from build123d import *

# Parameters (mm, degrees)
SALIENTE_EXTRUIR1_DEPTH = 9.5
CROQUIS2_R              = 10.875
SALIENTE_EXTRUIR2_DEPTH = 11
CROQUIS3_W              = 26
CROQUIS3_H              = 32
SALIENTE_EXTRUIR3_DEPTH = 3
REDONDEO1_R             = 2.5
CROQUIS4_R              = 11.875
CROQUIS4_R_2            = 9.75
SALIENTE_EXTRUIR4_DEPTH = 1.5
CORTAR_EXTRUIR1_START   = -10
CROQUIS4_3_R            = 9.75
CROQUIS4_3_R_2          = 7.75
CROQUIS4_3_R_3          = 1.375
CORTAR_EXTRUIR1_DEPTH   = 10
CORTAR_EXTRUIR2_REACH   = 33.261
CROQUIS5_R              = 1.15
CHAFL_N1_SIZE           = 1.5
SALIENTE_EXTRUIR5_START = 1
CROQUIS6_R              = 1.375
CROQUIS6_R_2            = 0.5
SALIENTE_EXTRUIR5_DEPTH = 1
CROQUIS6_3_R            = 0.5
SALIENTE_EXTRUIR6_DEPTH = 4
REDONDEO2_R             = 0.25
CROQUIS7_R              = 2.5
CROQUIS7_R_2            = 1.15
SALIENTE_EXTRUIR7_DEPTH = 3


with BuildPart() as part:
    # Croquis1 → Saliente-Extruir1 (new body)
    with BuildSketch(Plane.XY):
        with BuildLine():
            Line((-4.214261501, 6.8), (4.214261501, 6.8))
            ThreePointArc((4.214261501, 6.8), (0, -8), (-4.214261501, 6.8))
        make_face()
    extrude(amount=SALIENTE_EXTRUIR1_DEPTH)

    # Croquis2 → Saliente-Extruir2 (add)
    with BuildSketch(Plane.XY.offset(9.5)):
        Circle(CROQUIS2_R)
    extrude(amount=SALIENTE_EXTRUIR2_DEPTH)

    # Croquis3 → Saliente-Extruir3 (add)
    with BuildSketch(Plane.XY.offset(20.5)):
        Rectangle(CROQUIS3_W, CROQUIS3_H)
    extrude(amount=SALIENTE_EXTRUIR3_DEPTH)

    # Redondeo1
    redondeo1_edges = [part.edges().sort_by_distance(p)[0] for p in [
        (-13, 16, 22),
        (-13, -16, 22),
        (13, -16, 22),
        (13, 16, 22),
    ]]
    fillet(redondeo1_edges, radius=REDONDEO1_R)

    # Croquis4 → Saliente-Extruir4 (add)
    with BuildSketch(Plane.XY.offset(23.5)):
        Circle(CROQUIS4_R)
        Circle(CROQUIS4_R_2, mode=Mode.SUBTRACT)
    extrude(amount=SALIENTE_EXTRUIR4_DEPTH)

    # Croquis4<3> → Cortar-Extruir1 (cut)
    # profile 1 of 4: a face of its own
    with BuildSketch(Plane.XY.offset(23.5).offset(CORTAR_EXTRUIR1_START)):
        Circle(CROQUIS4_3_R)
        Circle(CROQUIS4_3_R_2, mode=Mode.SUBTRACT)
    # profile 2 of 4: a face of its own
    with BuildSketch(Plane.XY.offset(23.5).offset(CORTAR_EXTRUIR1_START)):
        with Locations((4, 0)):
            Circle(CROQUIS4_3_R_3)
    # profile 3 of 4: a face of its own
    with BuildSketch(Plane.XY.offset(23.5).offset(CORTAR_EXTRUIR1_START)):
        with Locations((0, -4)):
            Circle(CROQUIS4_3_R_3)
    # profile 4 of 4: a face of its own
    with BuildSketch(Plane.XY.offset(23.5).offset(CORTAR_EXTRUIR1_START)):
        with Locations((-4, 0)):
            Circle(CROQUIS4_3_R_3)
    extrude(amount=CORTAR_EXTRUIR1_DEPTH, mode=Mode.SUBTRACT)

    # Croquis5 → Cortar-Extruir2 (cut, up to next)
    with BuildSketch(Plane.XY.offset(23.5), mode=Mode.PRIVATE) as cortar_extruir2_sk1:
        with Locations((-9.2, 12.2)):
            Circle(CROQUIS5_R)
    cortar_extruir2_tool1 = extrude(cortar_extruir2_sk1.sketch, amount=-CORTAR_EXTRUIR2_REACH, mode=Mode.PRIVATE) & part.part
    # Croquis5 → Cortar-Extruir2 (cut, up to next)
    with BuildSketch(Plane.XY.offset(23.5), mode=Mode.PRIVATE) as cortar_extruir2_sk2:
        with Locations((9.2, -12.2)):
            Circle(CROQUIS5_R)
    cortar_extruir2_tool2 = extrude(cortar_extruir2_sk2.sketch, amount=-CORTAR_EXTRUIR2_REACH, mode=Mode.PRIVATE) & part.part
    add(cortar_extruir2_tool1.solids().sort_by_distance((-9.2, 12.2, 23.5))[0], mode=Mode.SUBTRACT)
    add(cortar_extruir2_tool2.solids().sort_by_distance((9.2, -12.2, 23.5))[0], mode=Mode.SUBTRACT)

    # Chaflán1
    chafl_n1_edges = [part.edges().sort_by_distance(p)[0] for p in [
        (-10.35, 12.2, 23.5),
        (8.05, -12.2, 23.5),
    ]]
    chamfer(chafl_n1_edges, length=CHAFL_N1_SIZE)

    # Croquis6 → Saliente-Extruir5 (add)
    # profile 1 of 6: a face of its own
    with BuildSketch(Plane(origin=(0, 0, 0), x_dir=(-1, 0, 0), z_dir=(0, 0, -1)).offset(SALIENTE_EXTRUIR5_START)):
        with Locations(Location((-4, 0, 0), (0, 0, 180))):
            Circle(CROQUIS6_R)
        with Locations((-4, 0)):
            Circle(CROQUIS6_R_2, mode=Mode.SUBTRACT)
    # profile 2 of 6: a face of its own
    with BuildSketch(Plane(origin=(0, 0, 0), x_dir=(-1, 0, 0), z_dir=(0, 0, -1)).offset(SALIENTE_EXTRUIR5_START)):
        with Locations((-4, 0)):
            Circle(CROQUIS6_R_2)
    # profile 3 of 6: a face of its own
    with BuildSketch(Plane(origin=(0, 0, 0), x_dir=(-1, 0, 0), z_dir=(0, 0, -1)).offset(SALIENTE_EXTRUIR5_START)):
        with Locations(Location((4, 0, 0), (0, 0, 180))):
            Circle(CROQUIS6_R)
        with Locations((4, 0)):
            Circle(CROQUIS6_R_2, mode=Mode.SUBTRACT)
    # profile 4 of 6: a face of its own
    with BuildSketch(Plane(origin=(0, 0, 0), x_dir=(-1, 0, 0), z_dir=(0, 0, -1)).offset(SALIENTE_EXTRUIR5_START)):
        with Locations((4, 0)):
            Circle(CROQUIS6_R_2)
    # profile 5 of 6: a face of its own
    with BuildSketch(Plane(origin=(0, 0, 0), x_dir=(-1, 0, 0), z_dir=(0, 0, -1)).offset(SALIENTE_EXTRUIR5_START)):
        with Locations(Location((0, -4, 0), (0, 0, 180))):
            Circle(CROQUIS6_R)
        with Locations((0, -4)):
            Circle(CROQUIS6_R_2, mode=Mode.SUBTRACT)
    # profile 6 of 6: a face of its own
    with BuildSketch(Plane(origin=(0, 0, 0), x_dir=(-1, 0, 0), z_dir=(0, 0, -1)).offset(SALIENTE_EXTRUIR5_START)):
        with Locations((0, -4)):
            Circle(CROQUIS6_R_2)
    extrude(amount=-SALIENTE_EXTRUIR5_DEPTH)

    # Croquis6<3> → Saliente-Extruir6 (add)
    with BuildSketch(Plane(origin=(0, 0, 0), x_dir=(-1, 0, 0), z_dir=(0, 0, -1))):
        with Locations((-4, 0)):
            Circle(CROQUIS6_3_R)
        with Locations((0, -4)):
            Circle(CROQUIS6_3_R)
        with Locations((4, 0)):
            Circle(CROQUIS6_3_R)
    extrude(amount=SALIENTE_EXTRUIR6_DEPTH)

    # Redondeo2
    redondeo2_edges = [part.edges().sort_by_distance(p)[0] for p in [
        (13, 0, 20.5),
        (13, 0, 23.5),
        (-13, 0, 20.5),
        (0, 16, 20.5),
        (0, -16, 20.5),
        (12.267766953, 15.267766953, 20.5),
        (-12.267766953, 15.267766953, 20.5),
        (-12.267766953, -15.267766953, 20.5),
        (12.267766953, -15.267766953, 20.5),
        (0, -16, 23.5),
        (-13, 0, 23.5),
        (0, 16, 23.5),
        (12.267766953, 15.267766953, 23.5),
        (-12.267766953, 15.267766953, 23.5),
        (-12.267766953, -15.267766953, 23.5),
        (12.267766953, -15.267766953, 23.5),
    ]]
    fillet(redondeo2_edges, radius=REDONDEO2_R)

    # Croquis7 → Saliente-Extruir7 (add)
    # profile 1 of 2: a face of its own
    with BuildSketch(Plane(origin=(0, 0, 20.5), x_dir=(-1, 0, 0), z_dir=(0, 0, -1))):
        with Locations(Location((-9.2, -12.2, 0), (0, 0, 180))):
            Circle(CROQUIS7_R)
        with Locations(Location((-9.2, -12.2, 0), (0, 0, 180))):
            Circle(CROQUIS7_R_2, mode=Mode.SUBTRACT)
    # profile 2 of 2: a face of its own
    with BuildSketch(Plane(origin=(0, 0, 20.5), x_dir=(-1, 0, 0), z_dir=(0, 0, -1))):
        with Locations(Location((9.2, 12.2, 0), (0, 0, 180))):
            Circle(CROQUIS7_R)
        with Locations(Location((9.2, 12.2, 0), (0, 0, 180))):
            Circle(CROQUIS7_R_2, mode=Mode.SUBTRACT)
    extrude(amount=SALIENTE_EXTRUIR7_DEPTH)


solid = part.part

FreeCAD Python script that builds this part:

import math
import FreeCAD as App
import Part
import Sketcher
Q = App.Units.Quantity


def edges_at(feature, points):
    """Names of the edges that pass closest to the given points."""
    edges = feature.Shape.Edges
    near = lambda p: min(range(len(edges)), key=lambda i: edges[i].distToShape(Part.Vertex(*p))[0])
    return sorted({f"Edge{near(p) + 1}" for p in points})

doc = App.newDocument("Part")
body = doc.addObject("PartDesign::Body", "Body")

sketch1 = doc.addObject("Sketcher::SketchObject", "Sketch")
body.addObject(sketch1)
sketch1.AttachmentSupport = (doc.XY_Plane, [""])
sketch1.MapMode = "FlatFace"
sketch1.addGeometry(Part.LineSegment(App.Vector(4, 7, 0), App.Vector(-4, 7, 0)), False)
sketch1.addGeometry(Part.ArcOfCircle(Part.Circle(App.Vector(0, 0, 0), App.Vector(0, 0, 1), 8), math.radians(122), math.radians(418)), False)
sketch1.addConstraint(Sketcher.Constraint("Coincident", 0, 1, 1, 2))
sketch1.addConstraint(Sketcher.Constraint("Coincident", 1, 1, 0, 2))
sketch1.addConstraint(Sketcher.Constraint("Horizontal", 0))
sketch1.addConstraint(Sketcher.Constraint("Coincident", 1, 3, -1, 1))
sketch1.addConstraint(Sketcher.Constraint("Radius", 1, Q("8 mm")))
sketch1.addConstraint(Sketcher.Constraint("DistanceY", -1, 1, 0, 1, Q("6.8 mm")))
pad1 = doc.addObject("PartDesign::Pad", "Pad")
body.addObject(pad1)
pad1.Profile = sketch1
pad1.Length = 9.5

sketch2 = doc.addObject("Sketcher::SketchObject", "Sketch001")
body.addObject(sketch2)
sketch2.AttachmentSupport = (doc.XY_Plane, [""])
sketch2.MapMode = "FlatFace"
sketch2.AttachmentOffset = App.Placement(App.Vector(0, 0, 9.5), App.Rotation())
sketch2.addGeometry(Part.Circle(App.Vector(0, 0, 0), App.Vector(0, 0, 1), 11), False)
sketch2.addConstraint(Sketcher.Constraint("Coincident", 0, 3, -1, 1))
sketch2.addConstraint(Sketcher.Constraint("Diameter", 0, Q("21.75 mm")))
pad2 = doc.addObject("PartDesign::Pad", "Pad001")
body.addObject(pad2)
pad2.Profile = sketch2
pad2.Length = 11

sketch3 = doc.addObject("Sketcher::SketchObject", "Sketch002")
body.addObject(sketch3)
sketch3.AttachmentSupport = (doc.XY_Plane, [""])
sketch3.MapMode = "FlatFace"
sketch3.AttachmentOffset = App.Placement(App.Vector(0, 0, 20.5), App.Rotation())
sketch3.addGeometry(Part.LineSegment(App.Vector(-13, 16, 0), App.Vector(-13, -16, 0)), False)
sketch3.addGeometry(Part.LineSegment(App.Vector(-13, -16, 0), App.Vector(13, -16, 0)), False)
sketch3.addGeometry(Part.LineSegment(App.Vector(13, -16, 0), App.Vector(13, 16, 0)), False)
sketch3.addGeometry(Part.LineSegment(App.Vector(13, 16, 0), App.Vector(-13, 16, 0)), False)
sketch3.addConstraint(Sketcher.Constraint("Coincident", 0, 2, 1, 1))
sketch3.addConstraint(Sketcher.Constraint("Coincident", 1, 2, 2, 1))
sketch3.addConstraint(Sketcher.Constraint("Coincident", 2, 2, 3, 1))
sketch3.addConstraint(Sketcher.Constraint("Coincident", 3, 2, 0, 1))
sketch3.addConstraint(Sketcher.Constraint("Vertical", 0))
sketch3.addConstraint(Sketcher.Constraint("Horizontal", 1))
sketch3.addConstraint(Sketcher.Constraint("Vertical", 2))
sketch3.addConstraint(Sketcher.Constraint("Horizontal", 3))
sketch3.addConstraint(Sketcher.Constraint("Symmetric", 0, 2, 2, 2, -1, 1))
sketch3.addConstraint(Sketcher.Constraint("DistanceX", 1, 1, 1, 2, Q("26 mm")))
sketch3.addConstraint(Sketcher.Constraint("DistanceY", 0, 2, 0, 1, Q("32 mm")))
pad3 = doc.addObject("PartDesign::Pad", "Pad002")
body.addObject(pad3)
pad3.Profile = sketch3
pad3.Length = 3
doc.recompute()

fillet = doc.addObject("PartDesign::Fillet", "Fillet")
body.addObject(fillet)
fillet.Base = (pad3, edges_at(pad3, [
    (-13, 16, 22),
    (-13, -16, 22),
    (13, -16, 22),
    (13, 16, 22),
]))
fillet.Radius = 2.5

sketch4 = doc.addObject("Sketcher::SketchObject", "Sketch003")
body.addObject(sketch4)
sketch4.AttachmentSupport = (doc.XY_Plane, [""])
sketch4.MapMode = "FlatFace"
sketch4.AttachmentOffset = App.Placement(App.Vector(0, 0, 23.5), App.Rotation())
sketch4.addGeometry(Part.Circle(App.Vector(0, 0, 0), App.Vector(0, 0, 1), 12), False)
sketch4.addGeometry(Part.Circle(App.Vector(0, 0, 0), App.Vector(0, 0, 1), 10), False)
sketch4.addConstraint(Sketcher.Constraint("Coincident", 0, 3, -1, 1))
sketch4.addConstraint(Sketcher.Constraint("Coincident", 1, 3, -1, 1))
sketch4.addConstraint(Sketcher.Constraint("Diameter", 1, Q("19.5 mm")))
sketch4.addConstraint(Sketcher.Constraint("Diameter", 0, Q("23.75 mm")))
pad4 = doc.addObject("PartDesign::Pad", "Pad003")
body.addObject(pad4)
pad4.Profile = sketch4
pad4.Length = 1.5

sketch5 = doc.addObject("Sketcher::SketchObject", "Sketch004")
body.addObject(sketch5)
sketch5.AttachmentSupport = (doc.XY_Plane, [""])
sketch5.MapMode = "FlatFace"
sketch5.AttachmentOffset = App.Placement(App.Vector(0, 0, 13.5), App.Rotation())
sketch5.addGeometry(Part.Circle(App.Vector(0, 0, 0), App.Vector(0, 0, 1), 9.8), False)
sketch5.addGeometry(Part.Circle(App.Vector(0, 0, 0), App.Vector(0, 0, 1), 7.8), False)
sketch5.addGeometry(Part.Circle(App.Vector(4, 0, 0), App.Vector(0, 0, 1), 1.4), False)
sketch5.addGeometry(Part.Circle(App.Vector(0, -4, 0), App.Vector(0, 0, 1), 1.4), False)
sketch5.addGeometry(Part.Circle(App.Vector(-4, 0, 0), App.Vector(0, 0, 1), 1.4), False)
sketch5.addConstraint(Sketcher.Constraint("Coincident", 0, 3, -1, 1))
sketch5.addConstraint(Sketcher.Constraint("Coincident", 1, 3, -1, 1))
sketch5.addConstraint(Sketcher.Constraint("Equal", 2, 3))
sketch5.addConstraint(Sketcher.Constraint("Equal", 3, 4))
sketch5.addConstraint(Sketcher.Constraint("Symmetric", 2, 3, 4, 3, -1, 1))
sketch5.addConstraint(Sketcher.Constraint("PointOnObject", 2, 3, -1))
sketch5.addConstraint(Sketcher.Constraint("PointOnObject", 3, 3, -2))
sketch5.addConstraint(Sketcher.Constraint("Diameter", 0, Q("19.5 mm")))
sketch5.addConstraint(Sketcher.Constraint("Diameter", 1, Q("15.5 mm")))
sketch5.addConstraint(Sketcher.Constraint("Diameter", 2, Q("2.75 mm")))
sketch5.addConstraint(Sketcher.Constraint("DistanceX", -1, 1, 2, 3, Q("4 mm")))
sketch5.addConstraint(Sketcher.Constraint("DistanceY", 3, 3, -1, 1, Q("4 mm")))
pocket1 = doc.addObject("PartDesign::Pocket", "Pocket")
body.addObject(pocket1)
pocket1.Profile = sketch5
pocket1.Length = 10
pocket1.Reversed = True

sketch6 = doc.addObject("Sketcher::SketchObject", "Sketch005")
body.addObject(sketch6)
sketch6.AttachmentSupport = (doc.XY_Plane, [""])
sketch6.MapMode = "FlatFace"
sketch6.AttachmentOffset = App.Placement(App.Vector(0, 0, 23.5), App.Rotation())
sketch6.addGeometry(Part.Circle(App.Vector(-9.2, 12.2, 0), App.Vector(0, 0, 1), 1.1), False)
sketch6.addConstraint(Sketcher.Constraint("Diameter", 0, Q("2.3 mm")))
sketch6.addConstraint(Sketcher.Constraint("DistanceX", 0, 3, -1, 1, Q("9.2 mm")))
sketch6.addConstraint(Sketcher.Constraint("DistanceY", -1, 1, 0, 3, Q("12.2 mm")))
pocket2 = doc.addObject("PartDesign::Pocket", "Pocket001")
body.addObject(pocket2)
pocket2.Profile = sketch6
pocket2.Type = "UpToFirst"

sketch7 = doc.addObject("Sketcher::SketchObject", "Sketch006")
body.addObject(sketch7)
sketch7.AttachmentSupport = (doc.XY_Plane, [""])
sketch7.MapMode = "FlatFace"
sketch7.AttachmentOffset = App.Placement(App.Vector(0, 0, 23.5), App.Rotation())
sketch7.addGeometry(Part.Circle(App.Vector(9.2, -12.2, 0), App.Vector(0, 0, 1), 1.1), False)
sketch7.addConstraint(Sketcher.Constraint("Diameter", 0, Q("2.3 mm")))
sketch7.addConstraint(Sketcher.Constraint("DistanceX", -1, 1, 0, 3, Q("9.2 mm")))
sketch7.addConstraint(Sketcher.Constraint("DistanceY", 0, 3, -1, 1, Q("12.2 mm")))
pocket3 = doc.addObject("PartDesign::Pocket", "Pocket002")
body.addObject(pocket3)
pocket3.Profile = sketch7
pocket3.Type = "UpToFirst"
doc.recompute()

chamfer = doc.addObject("PartDesign::Chamfer", "Chamfer")
body.addObject(chamfer)
chamfer.Base = (pocket3, edges_at(pocket3, [(-10.35, 12.2, 23.5), (8.05, -12.2, 23.5)]))
chamfer.Size = 1.5

sketch8 = doc.addObject("Sketcher::SketchObject", "Sketch007")
body.addObject(sketch8)
sketch8.AttachmentSupport = (doc.XY_Plane, [""])
sketch8.MapMode = "FlatFace"
sketch8.AttachmentOffset = App.Placement(App.Vector(0, 0, -1), App.Rotation())
sketch8.addGeometry(Part.Circle(App.Vector(4, 0, 0), App.Vector(0, 0, 1), 1.4), False)
sketch8.addGeometry(Part.Circle(App.Vector(-4, 0, 0), App.Vector(0, 0, 1), 1.4), False)
sketch8.addGeometry(Part.Circle(App.Vector(0, -4, 0), App.Vector(0, 0, 1), 1.4), False)
sketch8.addConstraint(Sketcher.Constraint("Equal", 0, 1))
sketch8.addConstraint(Sketcher.Constraint("Equal", 1, 2))
sketch8.addConstraint(Sketcher.Constraint("Symmetric", 0, 3, 1, 3, -1, 1))
sketch8.addConstraint(Sketcher.Constraint("PointOnObject", 0, 3, -1))
sketch8.addConstraint(Sketcher.Constraint("PointOnObject", 2, 3, -2))
sketch8.addConstraint(Sketcher.Constraint("Diameter", 0, Q("2.75 mm")))
sketch8.addConstraint(Sketcher.Constraint("DistanceX", -1, 1, 0, 3, Q("4 mm")))
sketch8.addConstraint(Sketcher.Constraint("DistanceY", 2, 3, -1, 1, Q("4 mm")))
pad5 = doc.addObject("PartDesign::Pad", "Pad004")
body.addObject(pad5)
pad5.Profile = sketch8
pad5.Length = 1

sketch9 = doc.addObject("Sketcher::SketchObject", "Sketch008")
body.addObject(sketch9)
sketch9.AttachmentSupport = (doc.XY_Plane, [""])
sketch9.MapMode = "FlatFace"
sketch9.addGeometry(Part.Circle(App.Vector(4, 0, 0), App.Vector(0, 0, 1), 0.5), False)
sketch9.addGeometry(Part.Circle(App.Vector(0, -4, 0), App.Vector(0, 0, 1), 0.5), False)
sketch9.addGeometry(Part.Circle(App.Vector(-4, 0, 0), App.Vector(0, 0, 1), 0.5), False)
sketch9.addConstraint(Sketcher.Constraint("Equal", 0, 1))
sketch9.addConstraint(Sketcher.Constraint("Equal", 1, 2))
sketch9.addConstraint(Sketcher.Constraint("Symmetric", 0, 3, 2, 3, -1, 1))
sketch9.addConstraint(Sketcher.Constraint("PointOnObject", 0, 3, -1))
sketch9.addConstraint(Sketcher.Constraint("PointOnObject", 1, 3, -2))
sketch9.addConstraint(Sketcher.Constraint("Diameter", 0, Q("1 mm")))
sketch9.addConstraint(Sketcher.Constraint("DistanceX", -1, 1, 0, 3, Q("4 mm")))
sketch9.addConstraint(Sketcher.Constraint("DistanceY", 1, 3, -1, 1, Q("4 mm")))
pad6 = doc.addObject("PartDesign::Pad", "Pad005")
body.addObject(pad6)
pad6.Profile = sketch9
pad6.Length = 4
pad6.Reversed = True
doc.recompute()

fillet2 = doc.addObject("PartDesign::Fillet", "Fillet001")
body.addObject(fillet2)
fillet2.Base = (pad6, edges_at(pad6, [
    (13, 0, 20.5),
    (13, 0, 23.5),
    (-13, 0, 20.5),
    (0, 16, 20.5),
    (0, -16, 20.5),
    (12.268, 15.268, 20.5),
    (-12.268, 15.268, 20.5),
    (-12.268, -15.268, 20.5),
    (12.268, -15.268, 20.5),
    (0, -16, 23.5),
    (-13, 0, 23.5),
    (0, 16, 23.5),
    (12.268, 15.268, 23.5),
    (-12.268, 15.268, 23.5),
    (-12.268, -15.268, 23.5),
    (12.268, -15.268, 23.5),
]))
fillet2.Radius = 0.25

sketch10 = doc.addObject("Sketcher::SketchObject", "Sketch009")
body.addObject(sketch10)
sketch10.AttachmentSupport = (doc.XY_Plane, [""])
sketch10.MapMode = "FlatFace"
sketch10.AttachmentOffset = App.Placement(App.Vector(0, 0, 20.5), App.Rotation())
sketch10.addGeometry(Part.Circle(App.Vector(9.2, -12.2, 0), App.Vector(0, 0, 1), 2.5), False)
sketch10.addGeometry(Part.Circle(App.Vector(9.2, -12.2, 0), App.Vector(0, 0, 1), 1.1), False)
sketch10.addGeometry(Part.Circle(App.Vector(-9.2, 12.2, 0), App.Vector(0, 0, 1), 2.5), False)
sketch10.addGeometry(Part.Circle(App.Vector(-9.2, 12.2, 0), App.Vector(0, 0, 1), 1.1), False)
sketch10.addConstraint(Sketcher.Constraint("Coincident", 1, 3, 0, 3))
sketch10.addConstraint(Sketcher.Constraint("Coincident", 3, 3, 2, 3))
sketch10.addConstraint(Sketcher.Constraint("Equal", 0, 2))
sketch10.addConstraint(Sketcher.Constraint("Equal", 1, 3))
sketch10.addConstraint(Sketcher.Constraint("Symmetric", 0, 3, 2, 3, -1, 1))
sketch10.addConstraint(Sketcher.Constraint("Diameter", 0, Q("5 mm")))
sketch10.addConstraint(Sketcher.Constraint("Diameter", 1, Q("2.3 mm")))
sketch10.addConstraint(Sketcher.Constraint("DistanceX", -1, 1, 0, 3, Q("9.2 mm")))
sketch10.addConstraint(Sketcher.Constraint("DistanceY", 0, 3, -1, 1, Q("12.2 mm")))
pad7 = doc.addObject("PartDesign::Pad", "Pad006")
body.addObject(pad7)
pad7.Profile = sketch10
pad7.Length = 3
pad7.Reversed = True

doc.recompute()
